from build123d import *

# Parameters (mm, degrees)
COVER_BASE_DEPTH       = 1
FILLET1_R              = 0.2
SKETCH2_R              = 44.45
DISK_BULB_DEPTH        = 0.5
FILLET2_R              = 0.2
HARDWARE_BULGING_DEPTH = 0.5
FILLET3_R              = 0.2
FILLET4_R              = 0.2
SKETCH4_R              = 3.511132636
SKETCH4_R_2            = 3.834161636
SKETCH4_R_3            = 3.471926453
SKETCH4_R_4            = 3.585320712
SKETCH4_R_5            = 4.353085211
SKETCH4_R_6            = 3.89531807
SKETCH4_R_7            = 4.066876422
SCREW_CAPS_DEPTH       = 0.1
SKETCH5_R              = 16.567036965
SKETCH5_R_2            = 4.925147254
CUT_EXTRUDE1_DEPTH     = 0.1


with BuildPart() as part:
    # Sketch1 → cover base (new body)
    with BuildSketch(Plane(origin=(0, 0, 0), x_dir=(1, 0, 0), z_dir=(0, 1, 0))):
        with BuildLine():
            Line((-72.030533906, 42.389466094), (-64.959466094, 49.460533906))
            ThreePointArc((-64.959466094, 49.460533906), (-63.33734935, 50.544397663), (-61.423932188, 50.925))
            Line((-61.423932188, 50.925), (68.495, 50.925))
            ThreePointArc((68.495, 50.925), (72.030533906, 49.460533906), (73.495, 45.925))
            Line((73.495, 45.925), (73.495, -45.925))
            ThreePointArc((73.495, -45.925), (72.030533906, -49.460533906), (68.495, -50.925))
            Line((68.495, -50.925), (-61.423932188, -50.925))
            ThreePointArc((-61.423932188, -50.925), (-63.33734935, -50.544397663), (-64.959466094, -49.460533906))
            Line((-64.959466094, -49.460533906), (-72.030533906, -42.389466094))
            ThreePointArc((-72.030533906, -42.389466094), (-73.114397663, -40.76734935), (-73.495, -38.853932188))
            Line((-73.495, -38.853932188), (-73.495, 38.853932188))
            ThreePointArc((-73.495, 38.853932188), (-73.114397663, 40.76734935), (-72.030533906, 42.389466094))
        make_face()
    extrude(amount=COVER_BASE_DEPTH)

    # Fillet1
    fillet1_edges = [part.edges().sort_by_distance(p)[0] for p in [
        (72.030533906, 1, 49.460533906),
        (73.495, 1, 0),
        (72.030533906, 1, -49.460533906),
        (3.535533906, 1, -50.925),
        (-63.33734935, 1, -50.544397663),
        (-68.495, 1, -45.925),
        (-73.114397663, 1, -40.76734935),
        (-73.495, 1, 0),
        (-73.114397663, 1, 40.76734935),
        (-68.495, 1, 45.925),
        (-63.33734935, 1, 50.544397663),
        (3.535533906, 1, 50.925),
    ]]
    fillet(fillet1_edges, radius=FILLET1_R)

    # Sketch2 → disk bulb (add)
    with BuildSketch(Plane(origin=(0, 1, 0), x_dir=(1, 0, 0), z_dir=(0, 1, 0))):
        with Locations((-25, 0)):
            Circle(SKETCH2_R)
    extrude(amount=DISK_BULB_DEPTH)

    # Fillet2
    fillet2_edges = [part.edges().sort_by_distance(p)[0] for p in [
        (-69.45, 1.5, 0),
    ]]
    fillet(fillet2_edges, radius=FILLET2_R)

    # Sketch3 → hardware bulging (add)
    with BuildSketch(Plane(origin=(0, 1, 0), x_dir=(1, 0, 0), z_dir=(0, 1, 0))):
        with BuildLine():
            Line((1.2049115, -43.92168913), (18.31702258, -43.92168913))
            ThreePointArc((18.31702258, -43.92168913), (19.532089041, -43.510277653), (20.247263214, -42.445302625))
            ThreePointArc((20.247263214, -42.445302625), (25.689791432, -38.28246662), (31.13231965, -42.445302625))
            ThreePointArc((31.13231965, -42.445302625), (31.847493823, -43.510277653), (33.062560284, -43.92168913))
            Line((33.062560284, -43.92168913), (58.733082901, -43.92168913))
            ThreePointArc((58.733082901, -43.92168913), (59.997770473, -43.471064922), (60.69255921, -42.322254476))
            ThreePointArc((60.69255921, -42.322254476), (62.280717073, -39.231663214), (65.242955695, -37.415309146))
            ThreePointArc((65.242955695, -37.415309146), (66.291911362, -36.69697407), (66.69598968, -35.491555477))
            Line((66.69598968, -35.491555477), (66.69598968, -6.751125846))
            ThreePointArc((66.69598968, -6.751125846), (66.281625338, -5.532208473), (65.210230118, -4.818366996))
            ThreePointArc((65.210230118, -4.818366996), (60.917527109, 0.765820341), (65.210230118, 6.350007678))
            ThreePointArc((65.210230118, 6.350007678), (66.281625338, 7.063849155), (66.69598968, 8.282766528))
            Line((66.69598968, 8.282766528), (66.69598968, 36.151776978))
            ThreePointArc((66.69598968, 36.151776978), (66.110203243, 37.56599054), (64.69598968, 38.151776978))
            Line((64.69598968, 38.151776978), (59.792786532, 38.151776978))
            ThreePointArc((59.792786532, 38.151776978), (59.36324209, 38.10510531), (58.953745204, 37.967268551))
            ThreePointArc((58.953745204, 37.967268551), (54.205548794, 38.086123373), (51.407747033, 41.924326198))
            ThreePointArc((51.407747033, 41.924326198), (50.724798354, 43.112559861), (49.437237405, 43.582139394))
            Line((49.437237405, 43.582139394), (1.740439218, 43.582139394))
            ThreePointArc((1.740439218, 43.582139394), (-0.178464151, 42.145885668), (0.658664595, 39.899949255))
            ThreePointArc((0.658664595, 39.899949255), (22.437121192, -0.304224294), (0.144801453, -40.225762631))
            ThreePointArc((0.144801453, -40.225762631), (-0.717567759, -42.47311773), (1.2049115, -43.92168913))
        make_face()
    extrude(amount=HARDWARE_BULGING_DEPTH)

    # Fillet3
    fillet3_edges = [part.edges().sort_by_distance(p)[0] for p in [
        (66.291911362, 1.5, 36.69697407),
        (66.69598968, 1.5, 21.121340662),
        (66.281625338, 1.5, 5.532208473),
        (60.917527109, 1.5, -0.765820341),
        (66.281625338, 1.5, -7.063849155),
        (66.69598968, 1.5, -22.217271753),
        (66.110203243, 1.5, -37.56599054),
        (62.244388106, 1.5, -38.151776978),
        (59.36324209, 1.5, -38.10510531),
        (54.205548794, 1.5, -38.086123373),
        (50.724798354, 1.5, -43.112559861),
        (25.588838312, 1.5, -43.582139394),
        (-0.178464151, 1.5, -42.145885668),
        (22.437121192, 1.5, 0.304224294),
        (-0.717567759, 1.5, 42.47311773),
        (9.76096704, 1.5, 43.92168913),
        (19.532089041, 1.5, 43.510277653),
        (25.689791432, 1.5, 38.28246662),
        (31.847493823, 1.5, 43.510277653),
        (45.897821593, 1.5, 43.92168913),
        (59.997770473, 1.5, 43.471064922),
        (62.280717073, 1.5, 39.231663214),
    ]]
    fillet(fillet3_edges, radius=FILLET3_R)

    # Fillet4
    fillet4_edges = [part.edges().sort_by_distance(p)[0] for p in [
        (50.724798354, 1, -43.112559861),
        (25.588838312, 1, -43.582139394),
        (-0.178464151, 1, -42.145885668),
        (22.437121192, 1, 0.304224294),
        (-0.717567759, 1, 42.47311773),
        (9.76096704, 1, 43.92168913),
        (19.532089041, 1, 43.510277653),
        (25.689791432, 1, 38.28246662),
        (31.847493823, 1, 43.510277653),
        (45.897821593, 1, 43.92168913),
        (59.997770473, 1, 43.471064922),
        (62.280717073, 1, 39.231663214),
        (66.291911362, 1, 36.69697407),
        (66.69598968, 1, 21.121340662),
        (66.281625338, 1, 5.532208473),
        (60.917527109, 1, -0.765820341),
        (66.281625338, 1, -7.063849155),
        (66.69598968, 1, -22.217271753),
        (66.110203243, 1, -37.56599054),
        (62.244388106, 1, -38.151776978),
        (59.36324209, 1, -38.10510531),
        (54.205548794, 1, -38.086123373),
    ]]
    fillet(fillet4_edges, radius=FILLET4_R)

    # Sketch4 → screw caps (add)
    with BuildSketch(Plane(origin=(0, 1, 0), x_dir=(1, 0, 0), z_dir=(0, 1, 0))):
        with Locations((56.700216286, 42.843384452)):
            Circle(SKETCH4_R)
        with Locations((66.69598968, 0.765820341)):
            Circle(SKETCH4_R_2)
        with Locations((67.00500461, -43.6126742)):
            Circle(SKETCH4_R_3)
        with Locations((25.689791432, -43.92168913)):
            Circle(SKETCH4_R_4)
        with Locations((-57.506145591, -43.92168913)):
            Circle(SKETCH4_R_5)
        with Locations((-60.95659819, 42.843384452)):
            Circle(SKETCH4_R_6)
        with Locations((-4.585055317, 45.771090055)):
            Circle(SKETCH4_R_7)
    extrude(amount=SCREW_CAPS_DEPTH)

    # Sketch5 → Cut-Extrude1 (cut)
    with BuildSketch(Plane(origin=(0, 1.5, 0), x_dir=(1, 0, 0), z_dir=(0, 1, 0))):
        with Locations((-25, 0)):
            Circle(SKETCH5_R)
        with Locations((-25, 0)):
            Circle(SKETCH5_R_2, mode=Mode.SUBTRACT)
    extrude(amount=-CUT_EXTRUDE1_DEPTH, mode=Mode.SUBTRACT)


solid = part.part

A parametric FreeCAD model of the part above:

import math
import FreeCAD as App
import Part
import Sketcher
Q = App.Units.Quantity


def edges_at(feature, points):
    """Names of the edges that pass closest to the given points."""
    edges = feature.Shape.Edges
    near = lambda p: min(range(len(edges)), key=lambda i: edges[i].distToShape(Part.Vertex(*p))[0])
    return sorted({f"Edge{near(p) + 1}" for p in points})

doc = App.newDocument("Part")
body = doc.addObject("PartDesign::Body", "Body")

# Sketch on XZ plane
sketch1 = body.newObject("Sketcher::SketchObject", "Sketch")
sketch1.AttachmentSupport = (doc.getObject("XZ_Plane"), [""])
sketch1.MapMode = "FlatFace"
sketch1.addGeometry([
    Part.LineSegment(App.Vector(-65, -49.5, 0), App.Vector(-72, -42.4, 0)),  # 0
    Part.ArcOfCircle(Part.Circle(App.Vector(-68.5, -38.9, 0), App.Vector(0, 0, 1), 5), math.radians(180), math.radians(225)),  # 1
    Part.LineSegment(App.Vector(-73.5, -38.9, 0), App.Vector(-73.5, 38.9, 0)),  # 2
    Part.ArcOfCircle(Part.Circle(App.Vector(-68.5, 38.9, 0), App.Vector(0, 0, 1), 5), math.radians(135), math.radians(180)),  # 3
    Part.LineSegment(App.Vector(-72, 42.4, 0), App.Vector(-65, 49.5, 0)),  # 4
    Part.ArcOfCircle(Part.Circle(App.Vector(-61.4, 45.9, 0), App.Vector(0, 0, 1), 5), math.radians(90), math.radians(135)),  # 5
    Part.LineSegment(App.Vector(-61.4, 50.9, 0), App.Vector(68.5, 50.9, 0)),  # 6
    Part.ArcOfCircle(Part.Circle(App.Vector(68.5, 45.9, 0), App.Vector(0, 0, 1), 5), math.radians(0), math.radians(90)),  # 7
    Part.LineSegment(App.Vector(73.5, 45.9, 0), App.Vector(73.5, -45.9, 0)),  # 8
    Part.ArcOfCircle(Part.Circle(App.Vector(68.5, -45.9, 0), App.Vector(0, 0, 1), 5), math.radians(-90), math.radians(0)),  # 9
    Part.LineSegment(App.Vector(68.5, -50.9, 0), App.Vector(-61.4, -50.9, 0)),  # 10
    Part.ArcOfCircle(Part.Circle(App.Vector(-61.4, -45.9, 0), App.Vector(0, 0, 1), 5), math.radians(-135), math.radians(-90)),  # 11
], False)
sketch1.addConstraint([
    Sketcher.Constraint("Tangent", 0, 2, 1, 2),
    Sketcher.Constraint("Tangent", 1, 1, 2, 1),
    Sketcher.Constraint("Tangent", 2, 2, 3, 2),
    Sketcher.Constraint("Tangent", 3, 1, 4, 1),
    Sketcher.Constraint("Tangent", 4, 2, 5, 2),
    Sketcher.Constraint("Tangent", 5, 1, 6, 1),
    Sketcher.Constraint("Tangent", 6, 2, 7, 2),
    Sketcher.Constraint("Tangent", 7, 1, 8, 1),
    Sketcher.Constraint("Tangent", 8, 2, 9, 2),
    Sketcher.Constraint("Tangent", 9, 1, 10, 1),
    Sketcher.Constraint("Tangent", 10, 2, 11, 2),
    Sketcher.Constraint("Tangent", 11, 1, 0, 1),
    Sketcher.Constraint("Vertical", 2),
    Sketcher.Constraint("Horizontal", 6),
    Sketcher.Constraint("Vertical", 8),
    Sketcher.Constraint("Horizontal", 10),
    Sketcher.Constraint("Equal", 1, 3),
    Sketcher.Constraint("Equal", 3, 5),
    Sketcher.Constraint("Equal", 5, 7),
    Sketcher.Constraint("Equal", 7, 9),
    Sketcher.Constraint("Equal", 9, 11),
    Sketcher.Constraint("Symmetric", 5, 3, 11, 3, -1),
    Sketcher.Constraint("Perpendicular", 0, 4),
    Sketcher.Constraint("Vertical", 0, 2, 3, 1),
    Sketcher.Constraint("Radius", 1, Q("5 mm")),
    Sketcher.Constraint("Distance", 0, Q("10 mm")),
    Sketcher.Constraint("DistanceY", 8, 2, 8, 1, Q("91.85 mm")),
    Sketcher.Constraint("DistanceX", 3, 3, 7, 3, Q("136.99 mm")),
    Sketcher.Constraint("DistanceX", 1, 3, -1, 1, Q("68.495 mm")),
])
pad1 = body.newObject("PartDesign::Pad", "Pad")
pad1.Profile = sketch1
pad1.Length = 1
pad1.Reversed = True
doc.recompute()

fillet = body.newObject("PartDesign::Fillet", "Fillet")
fillet.Base = (pad1, edges_at(pad1, [
    (72.031, 1, 49.461),
    (73.495, 1, 0),
    (72.031, 1, -49.461),
    (3.536, 1, -50.925),
    (-63.337, 1, -50.544),
    (-68.495, 1, -45.925),
    (-73.114, 1, -40.767),
    (-73.495, 1, 0),
    (-73.114, 1, 40.767),
    (-68.495, 1, 45.925),
    (-63.337, 1, 50.544),
    (3.536, 1, 50.925),
]))
fillet.Radius = 0.2

# Sketch on XZ plane
sketch2 = body.newObject("Sketcher::SketchObject", "Sketch001")
sketch2.AttachmentSupport = (doc.getObject("XZ_Plane"), [""])
sketch2.MapMode = "FlatFace"
sketch2.AttachmentOffset = App.Placement(App.Vector(0, 0, -1), App.Rotation())
sketch2.addGeometry(Part.Circle(App.Vector(-25, 0, 0), App.Vector(0, 0, 1), 44), False)
sketch2.addConstraint([
    Sketcher.Constraint("PointOnObject", 0, 3, -1),
    Sketcher.Constraint("Diameter", 0, Q("88.9 mm")),
    Sketcher.Constraint("DistanceX", 0, 3, -1, 1, Q("25 mm")),
])
pad2 = body.newObject("PartDesign::Pad", "Pad001")
pad2.Profile = sketch2
pad2.Length = 0.5
pad2.Reversed = True
doc.recompute()

fillet2 = body.newObject("PartDesign::Fillet", "Fillet001")
fillet2.Base = (pad2, edges_at(pad2, [(-69.45, 1.5, 0)]))
fillet2.Radius = 0.2

# Sketch on XZ plane
sketch3 = body.newObject("Sketcher::SketchObject", "Sketch002")
sketch3.AttachmentSupport = (doc.getObject("XZ_Plane"), [""])
sketch3.MapMode = "FlatFace"
sketch3.AttachmentOffset = App.Placement(App.Vector(0, 0, -1), App.Rotation())
sketch3.addGeometry([
    Part.LineSegment(App.Vector(1.2, 43.9, 0), App.Vector(18.3, 43.9, 0)),  # 0
    Part.ArcOfCircle(Part.Circle(App.Vector(18.3, 41.9, 0), App.Vector(0, 0, 1), 2), math.radians(15), math.radians(90)),  # 1
    Part.ArcOfCircle(Part.Circle(App.Vector(25.7, 43.9, 0), App.Vector(0, 0, 1), 5.6), math.radians(-165), math.radians(-15)),  # 2
    Part.ArcOfCircle(Part.Circle(App.Vector(33.1, 41.9, 0), App.Vector(0, 0, 1), 2), math.radians(90), math.radians(165)),  # 3
    Part.LineSegment(App.Vector(33.1, 43.9, 0), App.Vector(58.7, 43.9, 0)),  # 4
    Part.ArcOfCircle(Part.Circle(App.Vector(58.7, 41.9, 0), App.Vector(0, 0, 1), 2), math.radians(12), math.radians(90)),  # 5
    Part.ArcOfCircle(Part.Circle(App.Vector(67, 43.6, 0), App.Vector(0, 0, 1), 6.4), math.radians(-168), math.radians(-106)),  # 6
    Part.ArcOfCircle(Part.Circle(App.Vector(64.7, 35.5, 0), App.Vector(0, 0, 1), 2), math.radians(0), math.radians(74)),  # 7
    Part.LineSegment(App.Vector(66.7, 35.5, 0), App.Vector(66.7, 6.8, 0)),  # 8
    Part.ArcOfCircle(Part.Circle(App.Vector(64.7, 6.8, 0), App.Vector(0, 0, 1), 2), math.radians(-75), math.radians(0)),  # 9
    Part.ArcOfCircle(Part.Circle(App.Vector(66.7, -0.8, 0), App.Vector(0, 0, 1), 5.8), math.radians(105), math.radians(255)),  # 10
    Part.ArcOfCircle(Part.Circle(App.Vector(64.7, -8.3, 0), App.Vector(0, 0, 1), 2), math.radians(0), math.radians(75)),  # 11
    Part.LineSegment(App.Vector(66.7, -8.3, 0), App.Vector(66.7, -36.2, 0)),  # 12
    Part.ArcOfCircle(Part.Circle(App.Vector(64.7, -36.2, 0), App.Vector(0, 0, 1), 2), math.radians(-90), math.radians(0)),  # 13
    Part.LineSegment(App.Vector(64.7, -38.2, 0), App.Vector(59.8, -38.2, 0)),  # 14
    Part.ArcOfCircle(Part.Circle(App.Vector(59.8, -36.2, 0), App.Vector(0, 0, 1), 2), math.radians(-115), math.radians(-90)),  # 15
    Part.ArcOfCircle(Part.Circle(App.Vector(56.7, -42.8, 0), App.Vector(0, 0, 1), 5.4), math.radians(65), math.radians(170)),  # 16
    Part.ArcOfCircle(Part.Circle(App.Vector(49.4, -41.6, 0), App.Vector(0, 0, 1), 2), math.radians(-90), math.radians(-10)),  # 17
    Part.LineSegment(App.Vector(49.4, -43.6, 0), App.Vector(1.7, -43.6, 0)),  # 18
    Part.ArcOfCircle(Part.Circle(App.Vector(1.7, -41.6, 0), App.Vector(0, 0, 1), 2), math.radians(123), math.radians(270)),  # 19
    Part.ArcOfCircle(Part.Circle(App.Vector(-25, 0, 0), App.Vector(0, 0, 1), 47.4), math.radians(-57), math.radians(58)),  # 20
    Part.ArcOfCircle(Part.Circle(App.Vector(1.2, 41.9, 0), App.Vector(0, 0, 1), 2), math.radians(90), math.radians(238)),  # 21
], False)
sketch3.addConstraint([
    Sketcher.Constraint("Tangent", 0, 2, 1, 2),
    Sketcher.Constraint("Tangent", 1, 1, 2, 1),
    Sketcher.Constraint("Tangent", 2, 2, 3, 2),
    Sketcher.Constraint("Tangent", 3, 1, 4, 1),
    Sketcher.Constraint("Tangent", 4, 2, 5, 2),
    Sketcher.Constraint("Tangent", 5, 1, 6, 1),
    Sketcher.Constraint("Tangent", 6, 2, 7, 2),
    Sketcher.Constraint("Tangent", 7, 1, 8, 1),
    Sketcher.Constraint("Tangent", 8, 2, 9, 2),
    Sketcher.Constraint("Tangent", 9, 1, 10, 1),
    Sketcher.Constraint("Tangent", 10, 2, 11, 2),
    Sketcher.Constraint("Tangent", 11, 1, 12, 1),
    Sketcher.Constraint("Tangent", 12, 2, 13, 2),
    Sketcher.Constraint("Tangent", 13, 1, 14, 1),
    Sketcher.Constraint("Tangent", 14, 2, 15, 2),
    Sketcher.Constraint("Tangent", 15, 1, 16, 1),
    Sketcher.Constraint("Tangent", 16, 2, 17, 2),
    Sketcher.Constraint("Tangent", 17, 1, 18, 1),
    Sketcher.Constraint("Tangent", 18, 2, 19, 2),
    Sketcher.Constraint("Tangent", 19, 1, 20, 1),
    Sketcher.Constraint("Tangent", 20, 2, 21, 2),
    Sketcher.Constraint("Tangent", 21, 1, 0, 1),
    Sketcher.Constraint("Horizontal", 0),
    Sketcher.Constraint("Horizontal", 4),
    Sketcher.Constraint("Vertical", 8),
    Sketcher.Constraint("Vertical", 12),
    Sketcher.Constraint("Horizontal", 14),
    Sketcher.Constraint("Horizontal", 18),
    Sketcher.Constraint("Equal", 1, 3),
    Sketcher.Constraint("Equal", 3, 5),
    Sketcher.Constraint("Equal", 5, 7),
    Sketcher.Constraint("Equal", 7, 9),
    Sketcher.Constraint("Equal", 9, 11),
    Sketcher.Constraint("Equal", 11, 13),
    Sketcher.Constraint("Equal", 13, 15),
    Sketcher.Constraint("Equal", 15, 17),
    Sketcher.Constraint("Equal", 17, 19),
    Sketcher.Constraint("Equal", 19, 21),
    Sketcher.Constraint("PointOnObject", 20, 3, -1),
    Sketcher.Constraint("Horizontal", 1, 3, 3, 3),
    Sketcher.Constraint("Horizontal", 2, 3, 0, 2),
    Sketcher.Constraint("Vertical", 9, 3, 11, 3),
    Sketcher.Constraint("Vertical", 10, 3, 7, 1),
    Sketcher.Constraint("Radius", 1, Q("2 mm")),
    Sketcher.Constraint("DistanceX", 20, 3, -1, 1, Q("25 mm")),
    Sketcher.Constraint("DistanceX", 3, 3, 5, 1, Q("27.629999 mm")),
    Sketcher.Constraint("DistanceX", 18, 2, 18, 1, Q("47.696798 mm")),
    Sketcher.Constraint("Radius", 2, Q("5.639223 mm")),
    Sketcher.Constraint("Radius", 6, Q("6.442992 mm")),
    Sketcher.Constraint("Radius", 10, Q("5.778463 mm")),
    Sketcher.Constraint("Radius", 16, Q("5.371676 mm")),
    Sketcher.Constraint("Radius", 20, Q("47.438097 mm")),
    Sketcher.Constraint("DistanceX", 16, 2, 15, 1, Q("7.545998 mm")),
    Sketcher.Constraint("DistanceX", 0, 1, 0, 2, Q("17.112111 mm")),
    Sketcher.Constraint("DistanceY", 8, 2, 8, 1, Q("28.74043 mm")),
    Sketcher.Constraint("DistanceY", 12, 2, 12, 1, Q("27.86901 mm")),
    Sketcher.Constraint("DistanceX", -1, 1, 20, 2, Q("0.144801 mm")),
    Sketcher.Constraint("DistanceX", 2, 3, 7, 3, Q("39.006198 mm")),
    Sketcher.Constraint("DistanceY", 7, 3, 5, 1, Q("6.830699 mm")),
    Sketcher.Constraint("DistanceX", 14, 2, 14, 1, Q("4.903203 mm")),
])
pad3 = body.newObject("PartDesign::Pad", "Pad002")
pad3.Profile = sketch3
pad3.Length = 0.5
pad3.Reversed = True
doc.recompute()

fillet3 = body.newObject("PartDesign::Fillet", "Fillet002")
fillet3.Base = (pad3, edges_at(pad3, [
    (66.292, 1.5, 36.697),
    (66.696, 1.5, 21.121),
    (66.282, 1.5, 5.532),
    (60.918, 1.5, -0.766),
    (66.282, 1.5, -7.064),
    (66.696, 1.5, -22.217),
    (66.11, 1.5, -37.566),
    (62.244, 1.5, -38.152),
    (59.363, 1.5, -38.105),
    (54.206, 1.5, -38.086),
    (50.725, 1.5, -43.113),
    (25.589, 1.5, -43.582),
    (-0.178, 1.5, -42.146),
    (22.437, 1.5, 0.304),
    (-0.718, 1.5, 42.473),
    (9.761, 1.5, 43.922),
    (19.532, 1.5, 43.51),
    (25.69, 1.5, 38.282),
    (31.847, 1.5, 43.51),
    (45.898, 1.5, 43.922),
    (59.998, 1.5, 43.471),
    (62.281, 1.5, 39.232),
]))
fillet3.Radius = 0.2
doc.recompute()

fillet4 = body.newObject("PartDesign::Fillet", "Fillet003")
fillet4.Base = (fillet3, edges_at(fillet3, [
    (50.725, 1, -43.113),
    (25.589, 1, -43.582),
    (-0.178, 1, -42.146),
    (22.437, 1, 0.304),
    (-0.718, 1, 42.473),
    (9.761, 1, 43.922),
    (19.532, 1, 43.51),
    (25.69, 1, 38.282),
    (31.847, 1, 43.51),
    (45.898, 1, 43.922),
    (59.998, 1, 43.471),
    (62.281, 1, 39.232),
    (66.292, 1, 36.697),
    (66.696, 1, 21.121),
    (66.282, 1, 5.532),
    (60.918, 1, -0.766),
    (66.282, 1, -7.064),
    (66.696, 1, -22.217),
    (66.11, 1, -37.566),
    (62.244, 1, -38.152),
    (59.363, 1, -38.105),
    (54.206, 1, -38.086),
]))
fillet4.Radius = 0.2

# Sketch on XZ plane
sketch4 = body.newObject("Sketcher::SketchObject", "Sketch003")
sketch4.AttachmentSupport = (doc.getObject("XZ_Plane"), [""])
sketch4.MapMode = "FlatFace"
sketch4.AttachmentOffset = App.Placement(App.Vector(0, 0, -1), App.Rotation())
sketch4.addGeometry([
    Part.Circle(App.Vector(56.7, -42.8, 0), App.Vector(0, 0, 1), 3.5),  # 0
    Part.Circle(App.Vector(66.7, -0.8, 0), App.Vector(0, 0, 1), 3.8),  # 1
    Part.Circle(App.Vector(67, 43.6, 0), App.Vector(0, 0, 1), 3.5),  # 2
    Part.Circle(App.Vector(25.7, 43.9, 0), App.Vector(0, 0, 1), 3.6),  # 3
    Part.Circle(App.Vector(-57.5, 43.9, 0), App.Vector(0, 0, 1), 4.4),  # 4
    Part.Circle(App.Vector(-61, -42.8, 0), App.Vector(0, 0, 1), 3.9),  # 5
    Part.Circle(App.Vector(-4.6, -45.8, 0), App.Vector(0, 0, 1), 4.1),  # 6
], False)
sketch4.addConstraint([
    Sketcher.Constraint("Horizontal", 3, 3, 4, 3),
    Sketcher.Constraint("Horizontal", 0, 3, 5, 3),
    Sketcher.Constraint("Diameter", 3, Q("7.170641 mm")),
    Sketcher.Constraint("Diameter", 4, Q("8.70617 mm")),
    Sketcher.Constraint("Diameter", 0, Q("7.022265 mm")),
    Sketcher.Constraint("Diameter", 1, Q("7.668323 mm")),
    Sketcher.Constraint("Diameter", 2, Q("6.943853 mm")),
    Sketcher.Constraint("Diameter", 5, Q("7.790636 mm")),
    Sketcher.Constraint("Diameter", 6, Q("8.133753 mm")),
    Sketcher.Constraint("DistanceX", 5, 3, -1, 1, Q("60.956598 mm")),
    Sketcher.Constraint("DistanceX", 3, 3, 1, 3, Q("41.006198 mm")),
    Sketcher.Constraint("DistanceX", -1, 1, 1, 3, Q("66.69599 mm")),
    Sketcher.Constraint("DistanceY", 1, 3, -1, 1, Q("0.76582 mm")),
    Sketcher.Constraint("DistanceY", -1, 1, 3, 3, Q("43.921689 mm")),
    Sketcher.Constraint("DistanceY", 6, 3, -1, 1, Q("45.77109 mm")),
    Sketcher.Constraint("DistanceX", 0, 3, 2, 3, Q("10.304788 mm")),
    Sketcher.Constraint("DistanceY", 0, 3, 2, 3, Q("86.456059 mm")),
    Sketcher.Constraint("DistanceX", 4, 3, 2, 3, Q("124.51115 mm")),
    Sketcher.Constraint("DistanceX", 6, 3, 0, 3, Q("61.285272 mm")),
    Sketcher.Constraint("DistanceX", -1, 1, 0, 3, Q("56.700216 mm")),
    Sketcher.Constraint("DistanceY", 0, 3, -1, 1, Q("42.843384 mm")),
])
pad4 = body.newObject("PartDesign::Pad", "Pad003")
pad4.Profile = sketch4
pad4.Length = 0.1
pad4.Reversed = True

# Sketch on XZ plane
sketch5 = body.newObject("Sketcher::SketchObject", "Sketch004")
sketch5.AttachmentSupport = (doc.getObject("XZ_Plane"), [""])
sketch5.MapMode = "FlatFace"
sketch5.AttachmentOffset = App.Placement(App.Vector(0, 0, -1.5), App.Rotation())
sketch5.addGeometry([
    Part.Circle(App.Vector(-25, 0, 0), App.Vector(0, 0, 1), 16.6),
    Part.Circle(App.Vector(-25, 0, 0), App.Vector(0, 0, 1), 4.9),
], False)
sketch5.addConstraint([
    Sketcher.Constraint("Coincident", 1, 3, 0, 3),
    Sketcher.Constraint("PointOnObject", 0, 3, -1),
    Sketcher.Constraint("DistanceX", 0, 3, -1, 1, Q("25 mm")),
    Sketcher.Constraint("Diameter", 0, Q("33.134074 mm")),
    Sketcher.Constraint("Diameter", 1, Q("9.850295 mm")),
])
pocket1 = body.newObject("PartDesign::Pocket", "Pocket")
pocket1.Profile = sketch5
pocket1.Length = 0.1
pocket1.Reversed = True

doc.recompute()
